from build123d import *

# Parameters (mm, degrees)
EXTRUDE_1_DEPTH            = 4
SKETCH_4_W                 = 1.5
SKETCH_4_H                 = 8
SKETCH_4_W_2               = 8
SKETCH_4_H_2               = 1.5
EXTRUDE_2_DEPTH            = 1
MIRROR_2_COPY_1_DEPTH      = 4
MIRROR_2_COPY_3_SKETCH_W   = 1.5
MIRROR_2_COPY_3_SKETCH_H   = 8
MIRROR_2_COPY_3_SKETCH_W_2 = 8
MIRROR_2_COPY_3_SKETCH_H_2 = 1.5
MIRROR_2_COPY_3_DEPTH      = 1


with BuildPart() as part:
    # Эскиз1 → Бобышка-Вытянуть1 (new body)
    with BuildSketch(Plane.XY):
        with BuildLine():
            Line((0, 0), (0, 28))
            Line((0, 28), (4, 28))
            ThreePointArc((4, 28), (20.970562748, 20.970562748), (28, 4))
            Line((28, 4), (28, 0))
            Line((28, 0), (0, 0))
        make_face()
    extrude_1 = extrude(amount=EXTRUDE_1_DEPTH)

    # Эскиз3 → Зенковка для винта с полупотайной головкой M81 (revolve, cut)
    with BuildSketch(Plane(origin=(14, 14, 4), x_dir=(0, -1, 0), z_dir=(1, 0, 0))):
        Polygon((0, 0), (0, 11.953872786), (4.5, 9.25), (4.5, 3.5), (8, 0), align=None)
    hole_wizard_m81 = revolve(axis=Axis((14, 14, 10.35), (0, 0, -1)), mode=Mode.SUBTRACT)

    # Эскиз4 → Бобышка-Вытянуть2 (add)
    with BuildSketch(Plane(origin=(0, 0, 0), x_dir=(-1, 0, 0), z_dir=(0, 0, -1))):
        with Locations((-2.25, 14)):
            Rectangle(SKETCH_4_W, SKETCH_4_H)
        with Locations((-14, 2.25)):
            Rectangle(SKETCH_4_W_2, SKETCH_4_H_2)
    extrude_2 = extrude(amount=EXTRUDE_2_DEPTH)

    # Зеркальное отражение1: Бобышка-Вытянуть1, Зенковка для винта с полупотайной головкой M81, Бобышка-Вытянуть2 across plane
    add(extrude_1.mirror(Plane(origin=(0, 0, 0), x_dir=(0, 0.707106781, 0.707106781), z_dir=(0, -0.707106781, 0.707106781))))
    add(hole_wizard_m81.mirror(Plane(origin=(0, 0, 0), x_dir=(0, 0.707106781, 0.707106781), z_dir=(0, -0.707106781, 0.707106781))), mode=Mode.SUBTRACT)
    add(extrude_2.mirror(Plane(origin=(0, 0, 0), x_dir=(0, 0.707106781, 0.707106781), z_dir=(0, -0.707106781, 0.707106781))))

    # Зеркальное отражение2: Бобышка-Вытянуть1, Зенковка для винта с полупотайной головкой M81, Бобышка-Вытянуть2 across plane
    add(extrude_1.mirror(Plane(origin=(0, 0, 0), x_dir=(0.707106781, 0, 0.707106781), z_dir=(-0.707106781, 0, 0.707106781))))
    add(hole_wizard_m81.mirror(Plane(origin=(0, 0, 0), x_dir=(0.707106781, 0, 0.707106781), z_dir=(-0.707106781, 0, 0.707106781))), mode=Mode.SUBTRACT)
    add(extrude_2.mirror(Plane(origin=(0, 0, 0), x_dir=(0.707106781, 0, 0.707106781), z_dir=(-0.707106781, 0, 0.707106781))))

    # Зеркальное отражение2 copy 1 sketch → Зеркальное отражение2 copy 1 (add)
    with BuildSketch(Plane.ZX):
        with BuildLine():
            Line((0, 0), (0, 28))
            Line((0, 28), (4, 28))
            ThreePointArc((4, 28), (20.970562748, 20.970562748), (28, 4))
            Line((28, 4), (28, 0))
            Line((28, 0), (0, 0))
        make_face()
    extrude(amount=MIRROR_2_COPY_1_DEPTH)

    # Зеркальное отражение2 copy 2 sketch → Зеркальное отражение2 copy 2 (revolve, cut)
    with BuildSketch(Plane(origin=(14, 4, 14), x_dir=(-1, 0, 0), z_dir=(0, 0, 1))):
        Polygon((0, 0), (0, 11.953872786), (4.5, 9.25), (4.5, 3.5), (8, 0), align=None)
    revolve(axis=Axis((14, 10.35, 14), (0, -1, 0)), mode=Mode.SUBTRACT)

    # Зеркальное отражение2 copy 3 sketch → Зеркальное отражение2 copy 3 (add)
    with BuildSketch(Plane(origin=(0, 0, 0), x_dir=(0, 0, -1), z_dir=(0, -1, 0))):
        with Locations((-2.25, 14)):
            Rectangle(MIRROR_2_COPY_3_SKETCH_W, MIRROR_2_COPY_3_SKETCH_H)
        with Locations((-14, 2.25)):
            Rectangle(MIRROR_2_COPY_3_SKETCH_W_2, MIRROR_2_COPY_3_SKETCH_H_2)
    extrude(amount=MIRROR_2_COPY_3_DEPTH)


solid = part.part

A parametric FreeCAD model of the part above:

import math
import FreeCAD as App
import Part
import Sketcher

V = App.Vector
Q = App.Units.Quantity


def add_polygon(sketch, points):
    """Adds a closed chain of lines whose ends are joined by coincident constraints."""
    first, n = sketch.GeometryCount, len(points)
    for a, b in zip(points, points[1:] + points[:1]):
        sketch.addGeometry(Part.LineSegment(App.Vector(*a, 0), App.Vector(*b, 0)), False)
    for i in range(n):
        sketch.addConstraint(Sketcher.Constraint("Coincident", first + i, 2, first + (i + 1) % n, 1))

doc = App.newDocument("Part")
body = doc.addObject("PartDesign::Body", "Body")

sketch1 = body.newObject("Sketcher::SketchObject", "Sketch")
sketch1.AttachmentSupport = (doc.getObject("XY_Plane"), [""])
sketch1.MapMode = "FlatFace"
sketch1.addGeometry([
    Part.LineSegment(V(0, 28, 0), V(0, 0, 0)),
    Part.LineSegment(V(0, 0, 0), V(28, 0, 0)),
    Part.LineSegment(V(28, 0, 0), V(28, 4, 0)),
    Part.ArcOfCircle(Part.Circle(V(4, 4, 0), V(0, 0, 1), 24), math.radians(0), math.radians(90)),
    Part.LineSegment(V(4, 28, 0), V(0, 28, 0)),
], False)
sketch1.addConstraint([
    Sketcher.Constraint("Coincident", 0, 2, 1, 1),
    Sketcher.Constraint("Coincident", 1, 2, 2, 1),
    Sketcher.Constraint("Tangent", 2, 2, 3, 1),
    Sketcher.Constraint("Tangent", 3, 2, 4, 1),
    Sketcher.Constraint("Coincident", 4, 2, 0, 1),
    Sketcher.Constraint("Vertical", 0),
    Sketcher.Constraint("Horizontal", 1),
    Sketcher.Constraint("Vertical", 2),
    Sketcher.Constraint("Horizontal", 4),
    Sketcher.Constraint("Coincident", 0, 2, -1, 1),
    Sketcher.Constraint("Equal", 1, 0),
    Sketcher.Constraint("Radius", 3, Q("24 mm")),
    Sketcher.Constraint("DistanceX", 1, 1, 1, 2, Q("28 mm")),
])
pad1 = body.newObject("PartDesign::Pad", "Pad")
pad1.Profile = sketch1
pad1.Length = 4

sketch2 = body.newObject("Sketcher::SketchObject", "Sketch001")
sketch2.AttachmentSupport = (doc.getObject("YZ_Plane"), [""])
sketch2.MapMode = "FlatFace"
sketch2.AttachmentOffset = App.Placement(V(0, 0, 14), App.Rotation())
add_polygon(sketch2, [(14, -8), (14, 4), (6, 4), (9.5, 0.5), (9.5, -5.2)])
sketch2.addGeometry(Part.LineSegment(V(14, 4, 0), V(14, -8, 0)), True)
sketch2.addConstraint([
    Sketcher.Constraint("Vertical", 0),
    Sketcher.Constraint("Horizontal", 1),
    Sketcher.Constraint("Vertical", 3),
    Sketcher.Constraint("Vertical", 5),
    Sketcher.Constraint("Coincident", 5, 1, 0, 2),
    Sketcher.Constraint("Equal", 0, 5),
    Sketcher.Constraint("DistanceX", 1, 2, 1, 1, Q("8 mm")),
    Sketcher.Constraint("Angle", 2, Q("-45 deg")),
    Sketcher.Constraint("Angle", 4, Q("-31 deg")),
    Sketcher.Constraint("DistanceX", -1, 1, 0, 2, Q("14 mm")),
    Sketcher.Constraint("DistanceY", -1, 1, 0, 2, Q("4 mm")),
    Sketcher.Constraint("DistanceY", 3, 2, 3, 1, Q("5.75 mm")),
    Sketcher.Constraint("DistanceX", -1, 1, 2, 2, Q("9.5 mm")),
])
groove = body.newObject("PartDesign::Groove", "Groove")
groove.Profile = sketch2
groove.ReferenceAxis = (sketch2, ["Axis0"])
groove.Angle = 360

sketch3 = body.newObject("Sketcher::SketchObject", "Sketch002")
sketch3.AttachmentSupport = (doc.getObject("XY_Plane"), [""])
sketch3.MapMode = "FlatFace"
add_polygon(sketch3, [(3, 18), (3, 10), (1.5, 10), (1.5, 18)])
add_polygon(sketch3, [(18, 3), (18, 1.5), (10, 1.5), (10, 3)])
sketch3.addConstraint([
    Sketcher.Constraint("Vertical", 0),
    Sketcher.Constraint("Horizontal", 1),
    Sketcher.Constraint("Vertical", 2),
    Sketcher.Constraint("Horizontal", 3),
    Sketcher.Constraint("Vertical", 4),
    Sketcher.Constraint("Horizontal", 5),
    Sketcher.Constraint("Vertical", 6),
    Sketcher.Constraint("Horizontal", 7),
    Sketcher.Constraint("Equal", 7, 0),
    Sketcher.Constraint("Equal", 3, 4),
    Sketcher.Constraint("DistanceX", 5, 2, 5, 1, Q("8 mm")),
    Sketcher.Constraint("DistanceX", 1, 2, 1, 1, Q("1.5 mm")),
    Sketcher.Constraint("DistanceX", -1, 1, 0, 2, Q("3 mm")),
    Sketcher.Constraint("DistanceY", -1, 1, 0, 2, Q("10 mm")),
    Sketcher.Constraint("DistanceX", -1, 1, 4, 2, Q("18 mm")),
    Sketcher.Constraint("DistanceY", -1, 1, 6, 2, Q("3 mm")),
])
pad2 = body.newObject("PartDesign::Pad", "Pad001")
pad2.Profile = sketch3
pad2.Length = 1
pad2.Reversed = True
doc.recompute()

datumplane = body.newObject("PartDesign::Plane", "DatumPlane")
datumplane.Placement = App.Placement(V(0, 0, 0), App.Rotation(V(0, 0.707106781, 0.707106781), V(-1, 0, 0), V(0, -0.707106781, 0.707106781), "ZXY"))
mirrored = body.newObject("PartDesign::Mirrored", "Mirrored")
mirrored.Originals = [pad1, groove, pad2]
mirrored.MirrorPlane = (datumplane, [""])
body.Tip = mirrored
doc.recompute()

datumplane2 = body.newObject("PartDesign::Plane", "DatumPlane001")
datumplane2.Placement = App.Placement(V(0, 0, 0), App.Rotation(V(-0.707106781, 0, -0.707106781), V(0, -1, 0), V(-0.707106781, 0, 0.707106781), "ZXY"))
mirrored2 = body.newObject("PartDesign::Mirrored", "Mirrored001")
mirrored2.Originals = [pad1, groove, pad2]
mirrored2.MirrorPlane = (datumplane2, [""])
body.Tip = mirrored2

sketch4 = body.newObject("Sketcher::SketchObject", "Sketch003")
sketch4.AttachmentSupport = (doc.getObject("XZ_Plane"), [""])
sketch4.MapMode = "FlatFace"
sketch4.addGeometry([
    Part.LineSegment(V(28, 0, 0), V(0, 0, 0)),
    Part.LineSegment(V(0, 0, 0), V(0, 28, 0)),
    Part.LineSegment(V(0, 28, 0), V(4, 28, 0)),
    Part.ArcOfCircle(Part.Circle(V(4, 4, 0), V(0, 0, 1), 24), math.radians(0), math.radians(90)),
    Part.LineSegment(V(28, 4, 0), V(28, 0, 0)),
], False)
sketch4.addConstraint([
    Sketcher.Constraint("Coincident", 0, 2, 1, 1),
    Sketcher.Constraint("Coincident", 1, 2, 2, 1),
    Sketcher.Constraint("Tangent", 2, 2, 3, 2),
    Sketcher.Constraint("Tangent", 3, 1, 4, 1),
    Sketcher.Constraint("Coincident", 4, 2, 0, 1),
    Sketcher.Constraint("Horizontal", 0),
    Sketcher.Constraint("Vertical", 1),
    Sketcher.Constraint("Horizontal", 2),
    Sketcher.Constraint("Vertical", 4),
    Sketcher.Constraint("Coincident", 0, 2, -1, 1),
    Sketcher.Constraint("Equal", 0, 1),
    Sketcher.Constraint("Radius", 3, Q("24 mm")),
    Sketcher.Constraint("DistanceX", 0, 2, 0, 1, Q("28 mm")),
])
pad3 = body.newObject("PartDesign::Pad", "Pad002")
pad3.Profile = sketch4
pad3.Length = 4
pad3.Reversed = True

sketch5 = body.newObject("Sketcher::SketchObject", "Sketch004")
sketch5.AttachmentSupport = (doc.getObject("XY_Plane"), [""])
sketch5.MapMode = "FlatFace"
sketch5.AttachmentOffset = App.Placement(V(0, 0, 14), App.Rotation())
add_polygon(sketch5, [(14, -8), (14, 4), (6, 4), (9.5, 0.5), (9.5, -5.2)])
sketch5.addGeometry(Part.LineSegment(V(14, 4, 0), V(14, -8, 0)), True)
sketch5.addConstraint([
    Sketcher.Constraint("Vertical", 0),
    Sketcher.Constraint("Horizontal", 1),
    Sketcher.Constraint("Vertical", 3),
    Sketcher.Constraint("Vertical", 5),
    Sketcher.Constraint("Coincident", 5, 1, 0, 2),
    Sketcher.Constraint("Equal", 0, 5),
    Sketcher.Constraint("DistanceX", 1, 2, 1, 1, Q("8 mm")),
    Sketcher.Constraint("Angle", 2, Q("-45 deg")),
    Sketcher.Constraint("Angle", 4, Q("-31 deg")),
    Sketcher.Constraint("DistanceX", -1, 1, 0, 2, Q("14 mm")),
    Sketcher.Constraint("DistanceY", -1, 1, 0, 2, Q("4 mm")),
    Sketcher.Constraint("DistanceY", 3, 2, 3, 1, Q("5.75 mm")),
    Sketcher.Constraint("DistanceX", -1, 1, 2, 2, Q("9.5 mm")),
])
groove2 = body.newObject("PartDesign::Groove", "Groove001")
groove2.Profile = sketch5
groove2.ReferenceAxis = (sketch5, ["Axis0"])
groove2.Angle = 360

sketch6 = body.newObject("Sketcher::SketchObject", "Sketch005")
sketch6.AttachmentSupport = (doc.getObject("XZ_Plane"), [""])
sketch6.MapMode = "FlatFace"
add_polygon(sketch6, [(18, 3), (10, 3), (10, 1.5), (18, 1.5)])
add_polygon(sketch6, [(3, 18), (1.5, 18), (1.5, 10), (3, 10)])
sketch6.addConstraint([
    Sketcher.Constraint("Horizontal", 0),
    Sketcher.Constraint("Vertical", 1),
    Sketcher.Constraint("Horizontal", 2),
    Sketcher.Constraint("Vertical", 3),
    Sketcher.Constraint("Horizontal", 4),
    Sketcher.Constraint("Vertical", 5),
    Sketcher.Constraint("Horizontal", 6),
    Sketcher.Constraint("Vertical", 7),
    Sketcher.Constraint("Equal", 6, 1),
    Sketcher.Constraint("Equal", 2, 5),
    Sketcher.Constraint("DistanceX", 0, 2, 0, 1, Q("8 mm")),
    Sketcher.Constraint("DistanceX", 4, 2, 4, 1, Q("1.5 mm")),
    Sketcher.Constraint("DistanceX", -1, 1, 0, 2, Q("10 mm")),
    Sketcher.Constraint("DistanceY", -1, 1, 0, 2, Q("3 mm")),
    Sketcher.Constraint("DistanceY", -1, 1, 4, 2, Q("18 mm")),
    Sketcher.Constraint("DistanceX", -1, 1, 6, 2, Q("3 mm")),
])
pad4 = body.newObject("PartDesign::Pad", "Pad003")
pad4.Profile = sketch6
pad4.Length = 1

doc.recompute()
